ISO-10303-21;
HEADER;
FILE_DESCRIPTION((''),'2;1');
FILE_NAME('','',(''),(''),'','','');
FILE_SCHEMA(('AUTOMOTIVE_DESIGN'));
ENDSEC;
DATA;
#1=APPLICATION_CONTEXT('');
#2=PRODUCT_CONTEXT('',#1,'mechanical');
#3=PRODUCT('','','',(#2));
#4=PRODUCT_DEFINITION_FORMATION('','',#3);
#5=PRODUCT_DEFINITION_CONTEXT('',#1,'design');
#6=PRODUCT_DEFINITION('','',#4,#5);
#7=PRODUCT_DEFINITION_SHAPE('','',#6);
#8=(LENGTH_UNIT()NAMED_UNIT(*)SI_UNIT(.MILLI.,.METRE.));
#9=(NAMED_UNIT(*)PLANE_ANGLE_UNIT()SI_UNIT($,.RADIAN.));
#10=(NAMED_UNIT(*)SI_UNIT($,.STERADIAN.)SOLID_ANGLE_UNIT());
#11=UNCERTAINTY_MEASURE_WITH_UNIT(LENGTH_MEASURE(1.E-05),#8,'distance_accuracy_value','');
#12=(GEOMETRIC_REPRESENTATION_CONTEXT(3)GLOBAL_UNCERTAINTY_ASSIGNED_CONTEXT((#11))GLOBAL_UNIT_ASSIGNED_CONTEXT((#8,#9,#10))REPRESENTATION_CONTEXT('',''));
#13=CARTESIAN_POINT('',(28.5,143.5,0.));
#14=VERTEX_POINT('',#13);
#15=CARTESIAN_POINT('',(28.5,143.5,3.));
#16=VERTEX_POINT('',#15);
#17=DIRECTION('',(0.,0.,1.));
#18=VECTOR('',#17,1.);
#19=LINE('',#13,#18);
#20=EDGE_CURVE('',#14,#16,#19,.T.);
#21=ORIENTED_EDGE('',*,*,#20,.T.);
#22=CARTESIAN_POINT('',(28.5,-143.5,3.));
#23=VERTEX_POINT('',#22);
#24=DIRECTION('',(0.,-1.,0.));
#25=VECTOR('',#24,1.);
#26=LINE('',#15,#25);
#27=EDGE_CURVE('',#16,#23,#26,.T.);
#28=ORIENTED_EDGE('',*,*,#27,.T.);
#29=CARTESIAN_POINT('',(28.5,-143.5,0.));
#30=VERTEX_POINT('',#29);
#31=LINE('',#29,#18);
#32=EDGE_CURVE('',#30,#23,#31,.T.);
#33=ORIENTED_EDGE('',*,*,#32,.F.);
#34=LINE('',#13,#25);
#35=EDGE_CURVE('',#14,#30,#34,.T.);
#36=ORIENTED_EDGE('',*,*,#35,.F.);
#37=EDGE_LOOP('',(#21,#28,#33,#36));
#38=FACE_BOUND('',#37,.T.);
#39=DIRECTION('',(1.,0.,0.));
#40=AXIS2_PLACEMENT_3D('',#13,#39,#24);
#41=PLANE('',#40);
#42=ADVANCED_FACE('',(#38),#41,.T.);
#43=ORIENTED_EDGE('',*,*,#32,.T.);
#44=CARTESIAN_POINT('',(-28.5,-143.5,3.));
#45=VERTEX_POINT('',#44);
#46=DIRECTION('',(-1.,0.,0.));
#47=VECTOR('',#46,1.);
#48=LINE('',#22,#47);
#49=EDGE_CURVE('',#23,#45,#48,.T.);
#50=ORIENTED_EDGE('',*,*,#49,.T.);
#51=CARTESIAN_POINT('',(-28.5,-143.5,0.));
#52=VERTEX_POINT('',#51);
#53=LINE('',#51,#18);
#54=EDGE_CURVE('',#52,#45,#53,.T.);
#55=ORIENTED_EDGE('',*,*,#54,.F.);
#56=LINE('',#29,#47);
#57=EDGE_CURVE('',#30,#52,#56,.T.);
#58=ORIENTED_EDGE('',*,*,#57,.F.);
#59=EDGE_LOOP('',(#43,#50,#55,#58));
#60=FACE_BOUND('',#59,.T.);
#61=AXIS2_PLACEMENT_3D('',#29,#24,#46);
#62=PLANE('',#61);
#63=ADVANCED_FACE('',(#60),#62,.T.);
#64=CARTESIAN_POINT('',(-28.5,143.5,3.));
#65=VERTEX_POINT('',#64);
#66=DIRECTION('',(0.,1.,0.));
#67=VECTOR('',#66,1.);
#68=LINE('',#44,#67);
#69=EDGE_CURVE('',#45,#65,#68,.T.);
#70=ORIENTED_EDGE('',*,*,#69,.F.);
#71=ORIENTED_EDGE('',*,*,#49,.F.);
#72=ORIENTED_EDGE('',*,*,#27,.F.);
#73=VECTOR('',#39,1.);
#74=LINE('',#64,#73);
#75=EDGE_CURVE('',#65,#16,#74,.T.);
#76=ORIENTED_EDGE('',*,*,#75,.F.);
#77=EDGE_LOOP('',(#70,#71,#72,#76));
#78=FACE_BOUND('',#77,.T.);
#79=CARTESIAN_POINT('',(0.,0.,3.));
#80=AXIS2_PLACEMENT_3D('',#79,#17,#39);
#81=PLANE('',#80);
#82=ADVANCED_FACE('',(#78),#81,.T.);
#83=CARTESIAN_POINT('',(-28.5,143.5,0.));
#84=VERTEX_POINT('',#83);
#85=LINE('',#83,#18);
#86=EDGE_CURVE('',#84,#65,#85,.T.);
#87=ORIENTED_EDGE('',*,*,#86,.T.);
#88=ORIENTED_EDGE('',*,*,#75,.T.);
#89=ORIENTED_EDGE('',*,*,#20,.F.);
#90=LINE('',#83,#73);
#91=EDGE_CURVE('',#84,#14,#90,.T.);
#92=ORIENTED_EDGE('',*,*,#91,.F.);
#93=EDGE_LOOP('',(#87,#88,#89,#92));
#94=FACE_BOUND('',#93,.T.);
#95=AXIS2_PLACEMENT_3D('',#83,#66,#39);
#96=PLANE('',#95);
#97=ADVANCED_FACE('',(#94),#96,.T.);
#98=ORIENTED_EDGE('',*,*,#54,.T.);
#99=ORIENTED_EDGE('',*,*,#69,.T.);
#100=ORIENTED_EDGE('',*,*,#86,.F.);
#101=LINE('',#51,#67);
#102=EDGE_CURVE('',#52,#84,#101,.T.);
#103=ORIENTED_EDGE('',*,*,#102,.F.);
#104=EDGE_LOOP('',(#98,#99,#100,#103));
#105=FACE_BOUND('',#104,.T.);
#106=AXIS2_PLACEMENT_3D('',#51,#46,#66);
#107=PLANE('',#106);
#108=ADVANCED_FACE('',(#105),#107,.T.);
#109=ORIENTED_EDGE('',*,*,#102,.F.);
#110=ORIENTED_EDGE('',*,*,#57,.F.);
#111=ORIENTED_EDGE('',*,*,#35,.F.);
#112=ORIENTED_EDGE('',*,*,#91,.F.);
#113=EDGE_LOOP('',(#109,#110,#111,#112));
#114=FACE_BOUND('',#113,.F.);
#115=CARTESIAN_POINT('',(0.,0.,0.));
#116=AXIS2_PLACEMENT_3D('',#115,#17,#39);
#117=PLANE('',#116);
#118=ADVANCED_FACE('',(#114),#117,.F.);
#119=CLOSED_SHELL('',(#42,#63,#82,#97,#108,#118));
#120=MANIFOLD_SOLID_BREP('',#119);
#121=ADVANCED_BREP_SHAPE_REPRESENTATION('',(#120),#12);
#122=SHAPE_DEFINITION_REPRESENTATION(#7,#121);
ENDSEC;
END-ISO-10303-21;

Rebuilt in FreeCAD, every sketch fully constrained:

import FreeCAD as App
import Part
import Sketcher
Q = App.Units.Quantity


def add_polygon(sketch, points):
    """Adds a closed chain of lines whose ends are joined by coincident constraints."""
    first, n = sketch.GeometryCount, len(points)
    for a, b in zip(points, points[1:] + points[:1]):
        sketch.addGeometry(Part.LineSegment(App.Vector(*a, 0), App.Vector(*b, 0)), False)
    for i in range(n):
        sketch.addConstraint(Sketcher.Constraint("Coincident", first + i, 2, first + (i + 1) % n, 1))

doc = App.newDocument("Part")
params = doc.addObject("Spreadsheet::Sheet", "Params")
for row, (alias, value) in enumerate([
    ("sketch1_width", "57 mm"),
    ("sketch1_height", "287 mm"),
    ("pad1_length", "3 mm"),
], start=1):
    params.set(f"A{row}", alias)
    params.set(f"B{row}", "=" + value)
    params.setAlias(f"B{row}", alias)

body = doc.addObject("PartDesign::Body", "Body")

# Sketch on XY plane
sketch1 = body.newObject("Sketcher::SketchObject", "Sketch")
sketch1.AttachmentSupport = (doc.getObject("XY_Plane"), [""])
sketch1.MapMode = "FlatFace"
add_polygon(sketch1, [(28, 144), (-28, 144), (-28, -144), (28, -144)])  # lines 0-3
sketch1.addConstraint(Sketcher.Constraint("Horizontal", 0))
sketch1.addConstraint(Sketcher.Constraint("Vertical", 1))
sketch1.addConstraint(Sketcher.Constraint("Horizontal", 2))
sketch1.addConstraint(Sketcher.Constraint("Vertical", 3))
sketch1.addConstraint(Sketcher.Constraint("Symmetric", 0, 2, 2, 2, -1, 1))
sketch1.addConstraint(Sketcher.Constraint("DistanceX", 0, 2, 0, 1, Q("57 mm")))
sketch1.addConstraint(Sketcher.Constraint("DistanceY", 1, 2, 1, 1, Q("287 mm")))
sketch1.setExpression("Constraints[9]", "Params.sketch1_width")
sketch1.setExpression("Constraints[10]", "Params.sketch1_height")
pad1 = body.newObject("PartDesign::Pad", "Pad")
pad1.Profile = sketch1
pad1.setExpression("Length", "Params.pad1_length")

doc.recompute()
